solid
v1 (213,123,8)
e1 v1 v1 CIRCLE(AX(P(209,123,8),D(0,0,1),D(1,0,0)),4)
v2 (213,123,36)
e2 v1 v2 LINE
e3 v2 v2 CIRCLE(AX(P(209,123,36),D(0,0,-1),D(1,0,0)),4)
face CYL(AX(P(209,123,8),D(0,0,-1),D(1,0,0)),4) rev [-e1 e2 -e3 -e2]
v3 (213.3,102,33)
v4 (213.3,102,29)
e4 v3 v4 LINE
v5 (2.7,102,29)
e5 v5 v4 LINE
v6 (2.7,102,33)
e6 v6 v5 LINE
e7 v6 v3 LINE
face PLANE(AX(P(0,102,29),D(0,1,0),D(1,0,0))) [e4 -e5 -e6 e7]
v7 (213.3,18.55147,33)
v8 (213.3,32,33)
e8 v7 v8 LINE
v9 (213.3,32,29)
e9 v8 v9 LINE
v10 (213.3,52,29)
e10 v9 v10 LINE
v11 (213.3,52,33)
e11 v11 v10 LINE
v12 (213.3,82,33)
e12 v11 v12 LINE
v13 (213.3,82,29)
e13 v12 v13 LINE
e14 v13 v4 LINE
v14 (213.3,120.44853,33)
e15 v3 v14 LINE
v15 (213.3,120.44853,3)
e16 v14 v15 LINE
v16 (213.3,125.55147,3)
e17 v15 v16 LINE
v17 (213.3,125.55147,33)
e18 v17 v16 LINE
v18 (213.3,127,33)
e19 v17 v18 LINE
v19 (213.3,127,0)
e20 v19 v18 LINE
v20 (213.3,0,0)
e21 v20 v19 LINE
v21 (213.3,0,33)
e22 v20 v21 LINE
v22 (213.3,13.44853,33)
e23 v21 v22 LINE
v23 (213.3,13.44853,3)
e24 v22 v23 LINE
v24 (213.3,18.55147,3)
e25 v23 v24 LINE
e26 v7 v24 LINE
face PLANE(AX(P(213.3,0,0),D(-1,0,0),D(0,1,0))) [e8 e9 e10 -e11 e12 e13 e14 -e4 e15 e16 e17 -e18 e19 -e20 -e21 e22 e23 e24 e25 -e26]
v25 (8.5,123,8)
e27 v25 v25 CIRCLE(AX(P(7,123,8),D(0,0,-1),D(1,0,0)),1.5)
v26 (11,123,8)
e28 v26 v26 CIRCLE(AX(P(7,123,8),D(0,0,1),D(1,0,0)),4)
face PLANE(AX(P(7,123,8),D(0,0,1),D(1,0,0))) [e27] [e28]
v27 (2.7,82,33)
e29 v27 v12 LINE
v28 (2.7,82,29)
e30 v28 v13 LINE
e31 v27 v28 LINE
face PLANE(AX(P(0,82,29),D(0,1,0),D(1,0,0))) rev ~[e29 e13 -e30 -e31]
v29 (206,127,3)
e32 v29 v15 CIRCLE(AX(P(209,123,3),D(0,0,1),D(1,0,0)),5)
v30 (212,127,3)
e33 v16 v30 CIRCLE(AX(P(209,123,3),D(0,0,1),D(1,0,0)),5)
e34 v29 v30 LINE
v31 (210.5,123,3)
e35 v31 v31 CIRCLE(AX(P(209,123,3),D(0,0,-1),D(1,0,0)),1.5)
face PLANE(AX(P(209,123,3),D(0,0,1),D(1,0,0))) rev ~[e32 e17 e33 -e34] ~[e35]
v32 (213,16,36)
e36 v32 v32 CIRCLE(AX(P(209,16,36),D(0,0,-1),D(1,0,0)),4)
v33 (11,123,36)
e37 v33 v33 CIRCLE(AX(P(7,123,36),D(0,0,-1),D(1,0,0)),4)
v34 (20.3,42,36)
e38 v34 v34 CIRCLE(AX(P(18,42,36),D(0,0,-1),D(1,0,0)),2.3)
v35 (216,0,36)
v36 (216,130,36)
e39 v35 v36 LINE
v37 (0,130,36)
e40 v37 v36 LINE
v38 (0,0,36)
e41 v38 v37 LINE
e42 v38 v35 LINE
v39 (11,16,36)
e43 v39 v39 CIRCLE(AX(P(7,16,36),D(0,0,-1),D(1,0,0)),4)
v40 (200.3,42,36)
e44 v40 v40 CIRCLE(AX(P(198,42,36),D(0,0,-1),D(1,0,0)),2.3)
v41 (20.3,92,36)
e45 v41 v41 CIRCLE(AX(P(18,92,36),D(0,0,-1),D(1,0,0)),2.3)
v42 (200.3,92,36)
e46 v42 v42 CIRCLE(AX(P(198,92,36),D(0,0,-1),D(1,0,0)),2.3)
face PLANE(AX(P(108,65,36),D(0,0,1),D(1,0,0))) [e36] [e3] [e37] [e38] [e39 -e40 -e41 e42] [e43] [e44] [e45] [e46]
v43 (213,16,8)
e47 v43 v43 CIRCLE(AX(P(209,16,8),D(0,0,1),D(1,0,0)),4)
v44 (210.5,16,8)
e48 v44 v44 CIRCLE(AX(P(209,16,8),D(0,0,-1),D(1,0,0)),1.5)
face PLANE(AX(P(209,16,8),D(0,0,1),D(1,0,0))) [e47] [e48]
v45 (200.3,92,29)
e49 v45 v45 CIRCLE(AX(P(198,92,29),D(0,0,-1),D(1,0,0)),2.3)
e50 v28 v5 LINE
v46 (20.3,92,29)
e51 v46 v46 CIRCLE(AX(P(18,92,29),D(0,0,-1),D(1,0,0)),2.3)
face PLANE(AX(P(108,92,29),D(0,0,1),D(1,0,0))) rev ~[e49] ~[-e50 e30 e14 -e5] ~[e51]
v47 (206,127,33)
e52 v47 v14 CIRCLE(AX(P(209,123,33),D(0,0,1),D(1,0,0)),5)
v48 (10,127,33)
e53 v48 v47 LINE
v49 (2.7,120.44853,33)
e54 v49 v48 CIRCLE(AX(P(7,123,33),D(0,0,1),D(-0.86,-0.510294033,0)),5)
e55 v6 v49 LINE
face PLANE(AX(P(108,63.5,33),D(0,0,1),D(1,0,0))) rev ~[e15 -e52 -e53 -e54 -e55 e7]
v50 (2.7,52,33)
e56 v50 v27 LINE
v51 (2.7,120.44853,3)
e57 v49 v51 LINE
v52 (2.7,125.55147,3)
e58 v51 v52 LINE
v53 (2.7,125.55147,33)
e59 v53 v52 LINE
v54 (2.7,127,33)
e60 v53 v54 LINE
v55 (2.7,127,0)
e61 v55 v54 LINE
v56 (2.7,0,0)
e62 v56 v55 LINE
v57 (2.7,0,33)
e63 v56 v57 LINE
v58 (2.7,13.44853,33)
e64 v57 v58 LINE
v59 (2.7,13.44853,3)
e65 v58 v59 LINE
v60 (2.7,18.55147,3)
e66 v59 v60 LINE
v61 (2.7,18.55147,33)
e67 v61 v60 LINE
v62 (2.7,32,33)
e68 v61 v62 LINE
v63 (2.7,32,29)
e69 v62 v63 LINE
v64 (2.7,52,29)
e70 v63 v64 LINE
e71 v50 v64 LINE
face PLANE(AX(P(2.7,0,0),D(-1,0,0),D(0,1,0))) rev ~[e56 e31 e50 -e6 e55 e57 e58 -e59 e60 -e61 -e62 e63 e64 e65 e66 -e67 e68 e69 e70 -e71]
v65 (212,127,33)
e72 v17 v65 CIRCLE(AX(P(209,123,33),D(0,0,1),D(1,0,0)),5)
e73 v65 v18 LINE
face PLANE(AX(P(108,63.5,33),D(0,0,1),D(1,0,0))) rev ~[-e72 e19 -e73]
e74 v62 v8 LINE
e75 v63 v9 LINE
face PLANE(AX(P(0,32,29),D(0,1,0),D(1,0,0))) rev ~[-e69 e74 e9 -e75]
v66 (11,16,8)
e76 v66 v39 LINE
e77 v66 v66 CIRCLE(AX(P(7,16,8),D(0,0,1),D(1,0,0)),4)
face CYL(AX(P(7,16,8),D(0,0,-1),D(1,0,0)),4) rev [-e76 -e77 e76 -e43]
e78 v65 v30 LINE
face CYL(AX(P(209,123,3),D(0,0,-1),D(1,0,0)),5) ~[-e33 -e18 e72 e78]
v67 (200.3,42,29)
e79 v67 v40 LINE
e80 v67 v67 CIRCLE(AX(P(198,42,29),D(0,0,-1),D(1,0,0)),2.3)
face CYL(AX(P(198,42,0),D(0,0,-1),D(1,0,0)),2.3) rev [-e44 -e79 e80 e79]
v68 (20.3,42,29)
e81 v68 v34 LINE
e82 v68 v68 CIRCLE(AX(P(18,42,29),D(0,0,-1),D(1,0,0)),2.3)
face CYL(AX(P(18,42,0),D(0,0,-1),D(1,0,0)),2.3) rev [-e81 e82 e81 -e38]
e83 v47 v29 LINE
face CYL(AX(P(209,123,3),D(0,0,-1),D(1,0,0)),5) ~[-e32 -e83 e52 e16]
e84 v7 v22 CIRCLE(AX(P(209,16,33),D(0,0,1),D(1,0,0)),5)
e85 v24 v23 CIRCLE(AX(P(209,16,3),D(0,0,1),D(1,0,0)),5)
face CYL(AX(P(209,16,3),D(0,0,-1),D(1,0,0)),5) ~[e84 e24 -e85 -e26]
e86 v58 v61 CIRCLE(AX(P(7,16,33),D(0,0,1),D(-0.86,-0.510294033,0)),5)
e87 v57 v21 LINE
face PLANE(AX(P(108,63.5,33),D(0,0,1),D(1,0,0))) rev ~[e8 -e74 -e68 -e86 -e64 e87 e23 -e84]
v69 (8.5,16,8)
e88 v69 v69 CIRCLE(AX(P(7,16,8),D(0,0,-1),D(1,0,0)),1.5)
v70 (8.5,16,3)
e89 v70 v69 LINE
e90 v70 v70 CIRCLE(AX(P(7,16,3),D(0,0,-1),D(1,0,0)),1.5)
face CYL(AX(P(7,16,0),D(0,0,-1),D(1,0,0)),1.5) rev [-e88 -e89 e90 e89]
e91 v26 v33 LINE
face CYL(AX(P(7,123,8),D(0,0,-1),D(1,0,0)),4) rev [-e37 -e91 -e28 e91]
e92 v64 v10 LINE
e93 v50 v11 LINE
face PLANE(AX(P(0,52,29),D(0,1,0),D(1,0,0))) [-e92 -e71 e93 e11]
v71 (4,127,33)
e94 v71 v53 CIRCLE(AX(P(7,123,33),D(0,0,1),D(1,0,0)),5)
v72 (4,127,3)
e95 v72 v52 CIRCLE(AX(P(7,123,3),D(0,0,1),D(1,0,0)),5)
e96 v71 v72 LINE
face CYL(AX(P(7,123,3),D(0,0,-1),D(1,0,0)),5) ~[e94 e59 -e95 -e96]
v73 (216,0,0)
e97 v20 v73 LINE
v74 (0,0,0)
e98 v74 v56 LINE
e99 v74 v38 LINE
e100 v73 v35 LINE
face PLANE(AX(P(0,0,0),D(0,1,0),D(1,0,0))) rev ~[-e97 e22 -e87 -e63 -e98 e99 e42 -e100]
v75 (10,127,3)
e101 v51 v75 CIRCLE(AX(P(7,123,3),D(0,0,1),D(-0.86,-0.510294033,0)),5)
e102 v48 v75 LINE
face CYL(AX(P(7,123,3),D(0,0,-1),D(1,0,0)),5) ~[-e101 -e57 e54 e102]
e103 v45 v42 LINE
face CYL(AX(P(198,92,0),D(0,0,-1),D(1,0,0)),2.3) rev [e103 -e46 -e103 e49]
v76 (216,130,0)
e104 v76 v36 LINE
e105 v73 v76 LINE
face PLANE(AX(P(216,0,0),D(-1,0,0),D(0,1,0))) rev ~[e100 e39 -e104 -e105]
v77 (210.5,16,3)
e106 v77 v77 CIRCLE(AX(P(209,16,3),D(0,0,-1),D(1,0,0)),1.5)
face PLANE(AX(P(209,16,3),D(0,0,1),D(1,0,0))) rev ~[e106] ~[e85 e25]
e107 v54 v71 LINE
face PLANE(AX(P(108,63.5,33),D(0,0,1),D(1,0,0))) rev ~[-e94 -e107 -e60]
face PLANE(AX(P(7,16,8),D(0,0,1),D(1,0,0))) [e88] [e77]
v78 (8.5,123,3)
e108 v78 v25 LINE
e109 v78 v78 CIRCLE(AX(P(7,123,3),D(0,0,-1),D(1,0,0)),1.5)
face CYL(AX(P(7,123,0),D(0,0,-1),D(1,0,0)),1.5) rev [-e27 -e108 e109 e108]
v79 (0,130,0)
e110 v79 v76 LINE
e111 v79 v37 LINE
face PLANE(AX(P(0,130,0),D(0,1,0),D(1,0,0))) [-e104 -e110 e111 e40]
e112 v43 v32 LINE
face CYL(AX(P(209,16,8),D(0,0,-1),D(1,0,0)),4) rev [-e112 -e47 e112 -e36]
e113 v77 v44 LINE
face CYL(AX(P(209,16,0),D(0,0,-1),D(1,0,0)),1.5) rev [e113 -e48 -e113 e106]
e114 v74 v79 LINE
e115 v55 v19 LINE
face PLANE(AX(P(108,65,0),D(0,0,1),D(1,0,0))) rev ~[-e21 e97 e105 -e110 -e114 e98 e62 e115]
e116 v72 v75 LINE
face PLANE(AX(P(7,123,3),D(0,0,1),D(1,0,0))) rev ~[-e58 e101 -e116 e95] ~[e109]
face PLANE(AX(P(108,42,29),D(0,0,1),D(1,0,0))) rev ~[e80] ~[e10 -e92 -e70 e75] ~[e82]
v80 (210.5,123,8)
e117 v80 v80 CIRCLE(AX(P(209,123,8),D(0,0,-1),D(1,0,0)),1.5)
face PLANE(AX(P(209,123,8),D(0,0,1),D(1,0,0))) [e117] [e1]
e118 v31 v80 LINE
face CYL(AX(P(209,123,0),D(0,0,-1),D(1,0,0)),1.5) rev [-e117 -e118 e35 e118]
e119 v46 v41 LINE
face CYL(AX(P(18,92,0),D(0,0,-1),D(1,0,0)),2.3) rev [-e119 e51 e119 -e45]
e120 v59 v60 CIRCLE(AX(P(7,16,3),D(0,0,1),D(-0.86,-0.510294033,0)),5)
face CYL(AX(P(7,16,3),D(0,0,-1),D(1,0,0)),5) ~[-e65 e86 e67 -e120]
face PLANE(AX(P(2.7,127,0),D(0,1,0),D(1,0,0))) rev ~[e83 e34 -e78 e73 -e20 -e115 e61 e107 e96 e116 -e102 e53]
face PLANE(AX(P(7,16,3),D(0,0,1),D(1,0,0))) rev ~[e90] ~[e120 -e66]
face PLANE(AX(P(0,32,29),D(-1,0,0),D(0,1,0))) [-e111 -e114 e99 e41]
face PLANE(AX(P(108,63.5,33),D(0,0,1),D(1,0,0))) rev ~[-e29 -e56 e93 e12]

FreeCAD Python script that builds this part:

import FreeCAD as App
import Part
import Sketcher

V = App.Vector
Q = App.Units.Quantity

doc = App.newDocument("Part")
body = doc.addObject("PartDesign::Body", "Body")
body.AllowCompound = True

# Sketch on XY plane
sketch1 = body.newObject("Sketcher::SketchObject", "Sketch")
sketch1.AttachmentSupport = (doc.getObject("XY_Plane"), [""])
sketch1.MapMode = "FlatFace"
sketch1.addGeometry(Part.Circle(V(18, 42, 0), V(0, 0, 1), 2.3), False)
sketch1.addGeometry(Part.Circle(V(198, 42, 0), V(0, 0, 1), 2.3), False)
sketch1.addGeometry(Part.Circle(V(18, 92, 0), V(0, 0, 1), 2.3), False)
sketch1.addGeometry(Part.Circle(V(198, 92, 0), V(0, 0, 1), 2.3), False)
sketch1.addConstraint(Sketcher.Constraint("Equal", 0, 1))
sketch1.addConstraint(Sketcher.Constraint("Equal", 1, 2))
sketch1.addConstraint(Sketcher.Constraint("Equal", 2, 3))
sketch1.addConstraint(Sketcher.Constraint("Horizontal", 0, 3, 1, 3))
sketch1.addConstraint(Sketcher.Constraint("Horizontal", 2, 3, 3, 3))
sketch1.addConstraint(Sketcher.Constraint("Vertical", 0, 3, 2, 3))
sketch1.addConstraint(Sketcher.Constraint("Vertical", 1, 3, 3, 3))
sketch1.addConstraint(Sketcher.Constraint("Diameter", 0, Q("4.6 mm")))
sketch1.addConstraint(Sketcher.Constraint("DistanceX", -1, 1, 0, 3, Q("18 mm")))
sketch1.addConstraint(Sketcher.Constraint("DistanceY", -1, 1, 0, 3, Q("42 mm")))
sketch1.addConstraint(Sketcher.Constraint("DistanceX", -1, 1, 1, 3, Q("198 mm")))
sketch1.addConstraint(Sketcher.Constraint("DistanceY", -1, 1, 2, 3, Q("92 mm")))
pad1 = body.newObject("PartDesign::Pad", "Pad")
pad1.Profile = sketch1
pad1.Length = 100
body2 = doc.addObject("PartDesign::Body", "Body001")
body2.AllowCompound = True

# Sketch on XY plane
sketch2 = body2.newObject("Sketcher::SketchObject", "Sketch001")
sketch2.AttachmentSupport = (doc.getObject("XY_Plane001"), [""])
sketch2.MapMode = "FlatFace"
sketch2.AttachmentOffset = App.Placement(V(0, 0, 29), App.Rotation())
sketch2.addGeometry(Part.LineSegment(V(0, 102, 0), V(0, 82, 0)), False)
sketch2.addGeometry(Part.LineSegment(V(0, 82, 0), V(216, 82, 0)), False)
sketch2.addGeometry(Part.LineSegment(V(216, 82, 0), V(216, 102, 0)), False)
sketch2.addGeometry(Part.LineSegment(V(216, 102, 0), V(0, 102, 0)), False)
sketch2.addGeometry(Part.LineSegment(V(0, 52, 0), V(0, 32, 0)), False)
sketch2.addGeometry(Part.LineSegment(V(0, 32, 0), V(216, 32, 0)), False)
sketch2.addGeometry(Part.LineSegment(V(216, 32, 0), V(216, 52, 0)), False)
sketch2.addGeometry(Part.LineSegment(V(216, 52, 0), V(0, 52, 0)), False)
sketch2.addConstraint(Sketcher.Constraint("Coincident", 0, 2, 1, 1))
sketch2.addConstraint(Sketcher.Constraint("Coincident", 1, 2, 2, 1))
sketch2.addConstraint(Sketcher.Constraint("Coincident", 2, 2, 3, 1))
sketch2.addConstraint(Sketcher.Constraint("Coincident", 3, 2, 0, 1))
sketch2.addConstraint(Sketcher.Constraint("Coincident", 4, 2, 5, 1))
sketch2.addConstraint(Sketcher.Constraint("Coincident", 5, 2, 6, 1))
sketch2.addConstraint(Sketcher.Constraint("Coincident", 6, 2, 7, 1))
sketch2.addConstraint(Sketcher.Constraint("Coincident", 7, 2, 4, 1))
sketch2.addConstraint(Sketcher.Constraint("Vertical", 0))
sketch2.addConstraint(Sketcher.Constraint("Horizontal", 1))
sketch2.addConstraint(Sketcher.Constraint("Vertical", 2))
sketch2.addConstraint(Sketcher.Constraint("Horizontal", 3))
sketch2.addConstraint(Sketcher.Constraint("Vertical", 4))
sketch2.addConstraint(Sketcher.Constraint("Horizontal", 5))
sketch2.addConstraint(Sketcher.Constraint("Vertical", 6))
sketch2.addConstraint(Sketcher.Constraint("Horizontal", 7))
sketch2.addConstraint(Sketcher.Constraint("PointOnObject", 0, 2, -2))
sketch2.addConstraint(Sketcher.Constraint("PointOnObject", 4, 2, -2))
sketch2.addConstraint(Sketcher.Constraint("Vertical", 2, 2, 5, 2))
sketch2.addConstraint(Sketcher.Constraint("Equal", 2, 4))
sketch2.addConstraint(Sketcher.Constraint("DistanceX", 1, 1, 1, 2, Q("216 mm")))
sketch2.addConstraint(Sketcher.Constraint("DistanceY", 0, 2, 0, 1, Q("20 mm")))
sketch2.addConstraint(Sketcher.Constraint("DistanceY", -1, 1, 0, 2, Q("82 mm")))
sketch2.addConstraint(Sketcher.Constraint("DistanceY", -1, 1, 4, 2, Q("32 mm")))
pad2 = body2.newObject("PartDesign::Pad", "Pad001")
pad2.Profile = sketch2
pad2.Length = 4
body3 = doc.addObject("PartDesign::Body", "Body002")
body3.AllowCompound = True

# Sketch on XY plane
sketch3 = body3.newObject("Sketcher::SketchObject", "Sketch002")
sketch3.AttachmentSupport = (doc.getObject("XY_Plane002"), [""])
sketch3.MapMode = "FlatFace"
sketch3.AttachmentOffset = App.Placement(V(0, 0, 8), App.Rotation())
sketch3.addGeometry(Part.Circle(V(7, 123, 0), V(0, 0, 1), 4), False)
sketch3.addGeometry(Part.Circle(V(7, 16, 0), V(0, 0, 1), 4), False)
sketch3.addGeometry(Part.Circle(V(209, 123, 0), V(0, 0, 1), 4), False)
sketch3.addGeometry(Part.Circle(V(209, 16, 0), V(0, 0, 1), 4), False)
sketch3.addConstraint(Sketcher.Constraint("Equal", 0, 1))
sketch3.addConstraint(Sketcher.Constraint("Equal", 1, 2))
sketch3.addConstraint(Sketcher.Constraint("Equal", 2, 3))
sketch3.addConstraint(Sketcher.Constraint("Horizontal", 0, 3, 2, 3))
sketch3.addConstraint(Sketcher.Constraint("Horizontal", 1, 3, 3, 3))
sketch3.addConstraint(Sketcher.Constraint("Vertical", 0, 3, 1, 3))
sketch3.addConstraint(Sketcher.Constraint("Vertical", 2, 3, 3, 3))
sketch3.addConstraint(Sketcher.Constraint("Diameter", 0, Q("8 mm")))
sketch3.addConstraint(Sketcher.Constraint("DistanceX", -1, 1, 0, 3, Q("7 mm")))
sketch3.addConstraint(Sketcher.Constraint("DistanceY", -1, 1, 0, 3, Q("123 mm")))
sketch3.addConstraint(Sketcher.Constraint("DistanceY", -1, 1, 1, 3, Q("16 mm")))
sketch3.addConstraint(Sketcher.Constraint("DistanceX", -1, 1, 2, 3, Q("209 mm")))
pad3 = body3.newObject("PartDesign::Pad", "Pad002")
pad3.Profile = sketch3
pad3.Length = 50
body4 = doc.addObject("PartDesign::Body", "Body003")
body4.AllowCompound = True

# Sketch on XY plane
sketch4 = body4.newObject("Sketcher::SketchObject", "Sketch003")
sketch4.AttachmentSupport = (doc.getObject("XY_Plane003"), [""])
sketch4.MapMode = "FlatFace"
sketch4.addGeometry(Part.Circle(V(7, 123, 0), V(0, 0, 1), 1.5), False)
sketch4.addGeometry(Part.Circle(V(7, 16, 0), V(0, 0, 1), 1.5), False)
sketch4.addGeometry(Part.Circle(V(209, 123, 0), V(0, 0, 1), 1.5), False)
sketch4.addGeometry(Part.Circle(V(209, 16, 0), V(0, 0, 1), 1.5), False)
sketch4.addConstraint(Sketcher.Constraint("Equal", 0, 1))
sketch4.addConstraint(Sketcher.Constraint("Equal", 1, 2))
sketch4.addConstraint(Sketcher.Constraint("Equal", 2, 3))
sketch4.addConstraint(Sketcher.Constraint("Horizontal", 0, 3, 2, 3))
sketch4.addConstraint(Sketcher.Constraint("Horizontal", 1, 3, 3, 3))
sketch4.addConstraint(Sketcher.Constraint("Vertical", 0, 3, 1, 3))
sketch4.addConstraint(Sketcher.Constraint("Vertical", 2, 3, 3, 3))
sketch4.addConstraint(Sketcher.Constraint("Diameter", 0, Q("3 mm")))
sketch4.addConstraint(Sketcher.Constraint("DistanceX", -1, 1, 0, 3, Q("7 mm")))
sketch4.addConstraint(Sketcher.Constraint("DistanceY", -1, 1, 0, 3, Q("123 mm")))
sketch4.addConstraint(Sketcher.Constraint("DistanceY", -1, 1, 1, 3, Q("16 mm")))
sketch4.addConstraint(Sketcher.Constraint("DistanceX", -1, 1, 2, 3, Q("209 mm")))
pad4 = body4.newObject("PartDesign::Pad", "Pad003")
pad4.Profile = sketch4
pad4.Length = 100
body5 = doc.addObject("PartDesign::Body", "Body004")
body5.AllowCompound = True

# Sketch on XY plane
sketch5 = body5.newObject("Sketcher::SketchObject", "Sketch004")
sketch5.AttachmentSupport = (doc.getObject("XY_Plane004"), [""])
sketch5.MapMode = "FlatFace"
sketch5.AttachmentOffset = App.Placement(V(0, 0, 3), App.Rotation())
sketch5.addGeometry(Part.Circle(V(7, 123, 0), V(0, 0, 1), 5), False)
sketch5.addGeometry(Part.Circle(V(7, 16, 0), V(0, 0, 1), 5), False)
sketch5.addGeometry(Part.Circle(V(209, 123, 0), V(0, 0, 1), 5), False)
sketch5.addGeometry(Part.Circle(V(209, 16, 0), V(0, 0, 1), 5), False)
sketch5.addConstraint(Sketcher.Constraint("Equal", 0, 1))
sketch5.addConstraint(Sketcher.Constraint("Equal", 1, 2))
sketch5.addConstraint(Sketcher.Constraint("Equal", 2, 3))
sketch5.addConstraint(Sketcher.Constraint("Horizontal", 0, 3, 2, 3))
sketch5.addConstraint(Sketcher.Constraint("Horizontal", 1, 3, 3, 3))
sketch5.addConstraint(Sketcher.Constraint("Vertical", 0, 3, 1, 3))
sketch5.addConstraint(Sketcher.Constraint("Vertical", 2, 3, 3, 3))
sketch5.addConstraint(Sketcher.Constraint("Diameter", 0, Q("10 mm")))
sketch5.addConstraint(Sketcher.Constraint("DistanceX", -1, 1, 0, 3, Q("7 mm")))
sketch5.addConstraint(Sketcher.Constraint("DistanceY", -1, 1, 0, 3, Q("123 mm")))
sketch5.addConstraint(Sketcher.Constraint("DistanceY", -1, 1, 1, 3, Q("16 mm")))
sketch5.addConstraint(Sketcher.Constraint("DistanceX", -1, 1, 2, 3, Q("209 mm")))
pad5 = body5.newObject("PartDesign::Pad", "Pad004")
pad5.Profile = sketch5
pad5.Length = 30
body6 = doc.addObject("PartDesign::Body", "Body005")

# Sketch on XY plane
sketch6 = body6.newObject("Sketcher::SketchObject", "Sketch005")
sketch6.AttachmentSupport = (doc.getObject("XY_Plane005"), [""])
sketch6.MapMode = "FlatFace"
sketch6.addGeometry(Part.LineSegment(V(2.7, 127, 0), V(2.7, 0, 0)), False)
sketch6.addGeometry(Part.LineSegment(V(2.7, 0, 0), V(213.3, 0, 0)), False)
sketch6.addGeometry(Part.LineSegment(V(213.3, 0, 0), V(213.3, 127, 0)), False)
sketch6.addGeometry(Part.LineSegment(V(213.3, 127, 0), V(2.7, 127, 0)), False)
sketch6.addConstraint(Sketcher.Constraint("Coincident", 0, 2, 1, 1))
sketch6.addConstraint(Sketcher.Constraint("Coincident", 1, 2, 2, 1))
sketch6.addConstraint(Sketcher.Constraint("Coincident", 2, 2, 3, 1))
sketch6.addConstraint(Sketcher.Constraint("Coincident", 3, 2, 0, 1))
sketch6.addConstraint(Sketcher.Constraint("Vertical", 0))
sketch6.addConstraint(Sketcher.Constraint("Horizontal", 1))
sketch6.addConstraint(Sketcher.Constraint("Vertical", 2))
sketch6.addConstraint(Sketcher.Constraint("Horizontal", 3))
sketch6.addConstraint(Sketcher.Constraint("PointOnObject", 0, 2, -1))
sketch6.addConstraint(Sketcher.Constraint("DistanceY", 0, 2, 0, 1, Q("127 mm")))
sketch6.addConstraint(Sketcher.Constraint("DistanceX", 1, 1, 1, 2, Q("210.6 mm")))
sketch6.addConstraint(Sketcher.Constraint("DistanceX", -1, 1, 0, 2, Q("2.7 mm")))
pad6 = body6.newObject("PartDesign::Pad", "Pad005")
pad6.Profile = sketch6
pad6.Length = 33
body7 = doc.addObject("PartDesign::Body", "Body006")

# Sketch on XY plane
sketch7 = body7.newObject("Sketcher::SketchObject", "Sketch006")
sketch7.AttachmentSupport = (doc.getObject("XY_Plane006"), [""])
sketch7.MapMode = "FlatFace"
sketch7.addGeometry(Part.LineSegment(V(0, 130, 0), V(0, 0, 0)), False)
sketch7.addGeometry(Part.LineSegment(V(0, 0, 0), V(216, 0, 0)), False)
sketch7.addGeometry(Part.LineSegment(V(216, 0, 0), V(216, 130, 0)), False)
sketch7.addGeometry(Part.LineSegment(V(216, 130, 0), V(0, 130, 0)), False)
sketch7.addConstraint(Sketcher.Constraint("Coincident", 0, 2, 1, 1))
sketch7.addConstraint(Sketcher.Constraint("Coincident", 1, 2, 2, 1))
sketch7.addConstraint(Sketcher.Constraint("Coincident", 2, 2, 3, 1))
sketch7.addConstraint(Sketcher.Constraint("Coincident", 3, 2, 0, 1))
sketch7.addConstraint(Sketcher.Constraint("Vertical", 0))
sketch7.addConstraint(Sketcher.Constraint("Horizontal", 1))
sketch7.addConstraint(Sketcher.Constraint("Vertical", 2))
sketch7.addConstraint(Sketcher.Constraint("Horizontal", 3))
sketch7.addConstraint(Sketcher.Constraint("Coincident", 0, 2, -1, 1))
sketch7.addConstraint(Sketcher.Constraint("DistanceX", 1, 1, 1, 2, Q("216 mm")))
sketch7.addConstraint(Sketcher.Constraint("DistanceY", 0, 2, 0, 1, Q("130 mm")))
pad7 = body7.newObject("PartDesign::Pad", "Pad006")
pad7.Profile = sketch7
pad7.Length = 36
doc.recompute()

boolean = body7.newObject("PartDesign::Boolean", "Boolean")
boolean.Type = "Cut"
boolean.addObjects([body6])
doc.recompute()

boolean2 = body7.newObject("PartDesign::Boolean", "Boolean001")
boolean2.Type = "Fuse"
boolean2.addObjects([body5])
doc.recompute()

boolean3 = body7.newObject("PartDesign::Boolean", "Boolean002")
boolean3.Type = "Cut"
boolean3.addObjects([body4])
doc.recompute()

boolean4 = body7.newObject("PartDesign::Boolean", "Boolean003")
boolean4.Type = "Cut"
boolean4.addObjects([body3])
doc.recompute()

boolean5 = body7.newObject("PartDesign::Boolean", "Boolean004")
boolean5.Type = "Fuse"
boolean5.addObjects([body2])
doc.recompute()

boolean6 = body7.newObject("PartDesign::Boolean", "Boolean005")
boolean6.Type = "Cut"
boolean6.addObjects([body])

doc.recompute()
